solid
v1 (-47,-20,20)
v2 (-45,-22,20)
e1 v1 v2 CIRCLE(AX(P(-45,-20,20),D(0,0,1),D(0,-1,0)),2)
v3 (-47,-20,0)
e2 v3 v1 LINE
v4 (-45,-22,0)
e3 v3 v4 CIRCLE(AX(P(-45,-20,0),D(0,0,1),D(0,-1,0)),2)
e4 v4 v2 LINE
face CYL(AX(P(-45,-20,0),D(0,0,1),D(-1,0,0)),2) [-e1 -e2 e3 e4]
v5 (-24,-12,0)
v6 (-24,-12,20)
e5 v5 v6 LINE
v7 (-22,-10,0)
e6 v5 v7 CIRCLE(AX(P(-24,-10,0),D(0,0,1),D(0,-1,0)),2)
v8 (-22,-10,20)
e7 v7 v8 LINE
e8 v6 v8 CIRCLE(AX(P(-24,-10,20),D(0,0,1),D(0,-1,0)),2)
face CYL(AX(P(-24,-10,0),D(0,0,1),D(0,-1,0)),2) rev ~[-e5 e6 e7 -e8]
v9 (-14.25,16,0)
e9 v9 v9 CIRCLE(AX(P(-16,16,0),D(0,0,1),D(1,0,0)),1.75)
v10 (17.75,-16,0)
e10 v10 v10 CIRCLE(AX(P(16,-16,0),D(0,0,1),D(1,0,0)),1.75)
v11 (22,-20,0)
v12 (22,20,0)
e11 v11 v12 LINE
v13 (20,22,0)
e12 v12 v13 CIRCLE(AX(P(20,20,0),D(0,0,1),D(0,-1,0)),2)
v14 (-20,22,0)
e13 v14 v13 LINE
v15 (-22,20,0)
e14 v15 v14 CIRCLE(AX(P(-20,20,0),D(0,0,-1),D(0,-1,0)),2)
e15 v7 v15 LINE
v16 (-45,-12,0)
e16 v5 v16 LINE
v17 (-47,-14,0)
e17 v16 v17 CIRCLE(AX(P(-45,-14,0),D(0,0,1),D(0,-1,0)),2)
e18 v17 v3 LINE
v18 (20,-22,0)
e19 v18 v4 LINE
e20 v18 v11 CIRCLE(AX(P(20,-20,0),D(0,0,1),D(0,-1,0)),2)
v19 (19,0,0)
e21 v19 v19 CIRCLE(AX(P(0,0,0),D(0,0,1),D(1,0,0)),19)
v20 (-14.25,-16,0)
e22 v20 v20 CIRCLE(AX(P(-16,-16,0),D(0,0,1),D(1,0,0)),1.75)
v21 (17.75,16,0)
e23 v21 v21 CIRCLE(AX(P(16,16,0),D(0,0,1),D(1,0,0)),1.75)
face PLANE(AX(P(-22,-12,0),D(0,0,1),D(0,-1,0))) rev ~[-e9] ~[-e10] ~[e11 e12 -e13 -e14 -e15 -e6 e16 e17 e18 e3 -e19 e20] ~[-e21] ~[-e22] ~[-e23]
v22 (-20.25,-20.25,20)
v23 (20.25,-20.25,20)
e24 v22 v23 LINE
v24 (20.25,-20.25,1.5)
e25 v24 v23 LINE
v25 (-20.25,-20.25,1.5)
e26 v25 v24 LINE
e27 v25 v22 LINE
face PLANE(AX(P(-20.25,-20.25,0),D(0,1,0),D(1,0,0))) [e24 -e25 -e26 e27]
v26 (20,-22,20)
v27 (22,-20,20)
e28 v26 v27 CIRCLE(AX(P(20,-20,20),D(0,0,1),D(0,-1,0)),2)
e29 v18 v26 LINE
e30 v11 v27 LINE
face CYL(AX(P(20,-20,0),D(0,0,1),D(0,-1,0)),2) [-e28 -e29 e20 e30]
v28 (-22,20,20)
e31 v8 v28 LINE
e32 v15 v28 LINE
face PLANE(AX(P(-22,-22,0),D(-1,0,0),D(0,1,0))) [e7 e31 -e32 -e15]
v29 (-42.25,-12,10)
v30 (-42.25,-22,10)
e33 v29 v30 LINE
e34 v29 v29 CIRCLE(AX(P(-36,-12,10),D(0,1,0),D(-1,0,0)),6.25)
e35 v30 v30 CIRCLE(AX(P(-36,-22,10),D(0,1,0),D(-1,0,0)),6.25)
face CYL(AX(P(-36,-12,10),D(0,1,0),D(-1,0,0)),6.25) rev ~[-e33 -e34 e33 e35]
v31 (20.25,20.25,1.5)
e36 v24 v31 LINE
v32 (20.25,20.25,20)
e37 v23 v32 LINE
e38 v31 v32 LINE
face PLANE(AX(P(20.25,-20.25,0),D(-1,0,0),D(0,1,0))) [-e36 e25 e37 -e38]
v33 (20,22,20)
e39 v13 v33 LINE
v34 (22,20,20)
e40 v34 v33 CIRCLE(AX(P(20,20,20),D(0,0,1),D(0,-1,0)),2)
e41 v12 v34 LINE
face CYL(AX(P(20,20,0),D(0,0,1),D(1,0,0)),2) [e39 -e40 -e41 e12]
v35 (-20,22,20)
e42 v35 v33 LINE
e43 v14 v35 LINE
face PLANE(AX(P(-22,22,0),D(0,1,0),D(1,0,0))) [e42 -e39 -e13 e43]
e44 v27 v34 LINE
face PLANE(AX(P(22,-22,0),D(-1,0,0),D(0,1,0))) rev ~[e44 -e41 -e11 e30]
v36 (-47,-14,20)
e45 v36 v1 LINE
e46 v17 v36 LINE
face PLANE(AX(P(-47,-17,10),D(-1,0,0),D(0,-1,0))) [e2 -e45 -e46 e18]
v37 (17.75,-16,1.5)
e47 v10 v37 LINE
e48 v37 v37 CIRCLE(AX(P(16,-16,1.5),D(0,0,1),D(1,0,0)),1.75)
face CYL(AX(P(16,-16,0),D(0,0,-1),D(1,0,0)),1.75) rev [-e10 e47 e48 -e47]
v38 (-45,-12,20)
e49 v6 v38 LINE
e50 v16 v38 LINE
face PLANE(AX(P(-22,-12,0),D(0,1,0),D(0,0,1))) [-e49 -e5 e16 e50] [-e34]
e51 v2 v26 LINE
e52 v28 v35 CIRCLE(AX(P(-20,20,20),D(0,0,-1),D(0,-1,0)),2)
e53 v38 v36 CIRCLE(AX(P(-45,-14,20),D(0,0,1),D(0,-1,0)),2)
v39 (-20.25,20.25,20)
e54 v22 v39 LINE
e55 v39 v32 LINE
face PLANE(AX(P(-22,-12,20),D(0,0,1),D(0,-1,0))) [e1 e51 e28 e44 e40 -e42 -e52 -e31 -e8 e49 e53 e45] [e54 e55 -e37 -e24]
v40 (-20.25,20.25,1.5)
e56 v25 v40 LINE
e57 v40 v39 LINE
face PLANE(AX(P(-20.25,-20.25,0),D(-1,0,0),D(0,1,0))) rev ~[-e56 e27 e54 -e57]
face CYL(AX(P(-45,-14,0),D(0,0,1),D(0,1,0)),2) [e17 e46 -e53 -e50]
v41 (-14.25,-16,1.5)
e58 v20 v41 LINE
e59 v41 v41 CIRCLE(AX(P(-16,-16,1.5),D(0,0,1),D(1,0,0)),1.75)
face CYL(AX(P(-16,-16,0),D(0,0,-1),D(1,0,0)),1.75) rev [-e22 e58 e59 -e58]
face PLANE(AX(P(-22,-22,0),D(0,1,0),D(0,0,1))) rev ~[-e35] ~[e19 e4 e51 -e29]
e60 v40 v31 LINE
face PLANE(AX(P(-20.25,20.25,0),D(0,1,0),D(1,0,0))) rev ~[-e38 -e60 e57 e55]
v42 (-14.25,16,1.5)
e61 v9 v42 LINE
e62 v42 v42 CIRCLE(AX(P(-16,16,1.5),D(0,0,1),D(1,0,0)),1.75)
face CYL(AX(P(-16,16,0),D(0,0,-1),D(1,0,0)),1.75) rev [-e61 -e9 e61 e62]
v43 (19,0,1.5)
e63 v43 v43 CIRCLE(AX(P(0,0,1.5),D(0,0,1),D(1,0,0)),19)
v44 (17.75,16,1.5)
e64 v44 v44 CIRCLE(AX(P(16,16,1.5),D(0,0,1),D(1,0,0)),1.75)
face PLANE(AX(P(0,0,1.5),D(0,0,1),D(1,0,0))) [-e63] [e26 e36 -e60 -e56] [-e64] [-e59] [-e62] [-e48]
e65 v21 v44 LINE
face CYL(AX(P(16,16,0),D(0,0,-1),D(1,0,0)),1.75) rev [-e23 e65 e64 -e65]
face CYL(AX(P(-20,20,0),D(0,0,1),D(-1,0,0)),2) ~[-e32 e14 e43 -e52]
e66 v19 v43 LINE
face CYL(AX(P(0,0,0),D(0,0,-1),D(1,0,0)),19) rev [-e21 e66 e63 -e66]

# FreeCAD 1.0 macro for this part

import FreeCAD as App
import Part
import Sketcher

V = App.Vector


def edges_at(feature, points):
    """Names of the edges that pass closest to the given points."""
    edges = feature.Shape.Edges
    near = lambda p: min(range(len(edges)), key=lambda i: edges[i].distToShape(Part.Vertex(*p))[0])
    return sorted({f"Edge{near(p) + 1}" for p in points})


def add_polygon(sketch, points):
    """Adds a closed chain of lines whose ends are joined by coincident constraints."""
    first, n = sketch.GeometryCount, len(points)
    for a, b in zip(points, points[1:] + points[:1]):
        sketch.addGeometry(Part.LineSegment(App.Vector(*a, 0), App.Vector(*b, 0)), False)
    for i in range(n):
        sketch.addConstraint(Sketcher.Constraint("Coincident", first + i, 2, first + (i + 1) % n, 1))

doc = App.newDocument("Part")
body = doc.addObject("PartDesign::Body", "Body")

sketch1 = body.newObject("Sketcher::SketchObject", "Sketch")
sketch1.AttachmentSupport = (doc.getObject("XY_Plane"), [""])
sketch1.MapMode = "FlatFace"
add_polygon(sketch1, [(-22, 22), (-22, -22), (22, -22), (22, 22)])
add_polygon(sketch1, [(20.25, -20.25), (-20.25, -20.25), (-20.25, 20.25), (20.25, 20.25)])
sketch1.addConstraint(Sketcher.Constraint("Vertical", 0))
sketch1.addConstraint(Sketcher.Constraint("Horizontal", 1))
sketch1.addConstraint(Sketcher.Constraint("Vertical", 2))
sketch1.addConstraint(Sketcher.Constraint("Horizontal", 3))
sketch1.addConstraint(Sketcher.Constraint("Horizontal", 4))
sketch1.addConstraint(Sketcher.Constraint("Vertical", 5))
sketch1.addConstraint(Sketcher.Constraint("Horizontal", 6))
sketch1.addConstraint(Sketcher.Constraint("Vertical", 7))
sketch1.addConstraint(Sketcher.Constraint("Symmetric", 0, 2, 2, 2, -1, 1))
sketch1.addConstraint(Sketcher.Constraint("Symmetric", 4, 2, 6, 2, -1, 1))
sketch1.addConstraint(Sketcher.Constraint("Equal", 3, 0))
sketch1.addConstraint(Sketcher.Constraint("Equal", 6, 5))
sketch1.addConstraint(Sketcher.Constraint("DistanceX", 1, 1, 1, 2, 44.0))
sketch1.addConstraint(Sketcher.Constraint("DistanceX", 4, 2, 4, 1, 40.5))
pad1 = body.newObject("PartDesign::Pad", "Pad")
pad1.Profile = sketch1
pad1.Length = 20

sketch2 = body.newObject("Sketcher::SketchObject", "Sketch001")
sketch2.AttachmentSupport = (doc.getObject("XY_Plane"), [""])
sketch2.MapMode = "FlatFace"
add_polygon(sketch2, [(-20.25, 20.25), (-20.25, -20.25), (20.25, -20.25), (20.25, 20.25)])
sketch2.addGeometry(Part.Circle(V(-16, -16, 0), V(0, 0, 1), 1.75), False)
sketch2.addGeometry(Part.Circle(V(16, -16, 0), V(0, 0, 1), 1.75), False)
sketch2.addGeometry(Part.Circle(V(-16, 16, 0), V(0, 0, 1), 1.75), False)
sketch2.addGeometry(Part.Circle(V(0, 0, 0), V(0, 0, 1), 19), False)
sketch2.addGeometry(Part.Circle(V(16, 16, 0), V(0, 0, 1), 1.75), False)
sketch2.addConstraint(Sketcher.Constraint("Vertical", 0))
sketch2.addConstraint(Sketcher.Constraint("Horizontal", 1))
sketch2.addConstraint(Sketcher.Constraint("Vertical", 2))
sketch2.addConstraint(Sketcher.Constraint("Horizontal", 3))
sketch2.addConstraint(Sketcher.Constraint("Coincident", 7, 3, -1, 1))
sketch2.addConstraint(Sketcher.Constraint("Equal", 4, 5))
sketch2.addConstraint(Sketcher.Constraint("Equal", 5, 6))
sketch2.addConstraint(Sketcher.Constraint("Equal", 6, 8))
sketch2.addConstraint(Sketcher.Constraint("Symmetric", 5, 3, 6, 3, -1, 1))
sketch2.addConstraint(Sketcher.Constraint("Symmetric", 4, 3, 8, 3, -1, 1))
sketch2.addConstraint(Sketcher.Constraint("Symmetric", 0, 2, 2, 2, -1, 1))
sketch2.addConstraint(Sketcher.Constraint("Symmetric", 4, 3, 5, 3, -2))
sketch2.addConstraint(Sketcher.Constraint("Equal", 3, 0))
sketch2.addConstraint(Sketcher.Constraint("Diameter", 7, 38.0))
sketch2.addConstraint(Sketcher.Constraint("Diameter", 4, 3.5))
sketch2.addConstraint(Sketcher.Constraint("DistanceX", 1, 1, 1, 2, 40.5))
sketch2.addConstraint(Sketcher.Constraint("DistanceX", 4, 3, -1, 1, 16.0))
sketch2.addConstraint(Sketcher.Constraint("DistanceY", 4, 3, -1, 1, 16.0))
pad2 = body.newObject("PartDesign::Pad", "Pad001")
pad2.Profile = sketch2
pad2.Length = 1.5

sketch3 = body.newObject("Sketcher::SketchObject", "Sketch002")
sketch3.AttachmentSupport = (doc.getObject("YZ_Plane"), [""])
sketch3.MapMode = "FlatFace"
sketch3.AttachmentOffset = App.Placement(V(0, 0, -22), App.Rotation())
add_polygon(sketch3, [(-12, 20), (-12, 0), (-22, 0), (-22, 20)])
sketch3.addConstraint(Sketcher.Constraint("Vertical", 0))
sketch3.addConstraint(Sketcher.Constraint("Horizontal", 1))
sketch3.addConstraint(Sketcher.Constraint("Vertical", 2))
sketch3.addConstraint(Sketcher.Constraint("Horizontal", 3))
sketch3.addConstraint(Sketcher.Constraint("PointOnObject", 0, 2, -1))
sketch3.addConstraint(Sketcher.Constraint("DistanceX", 1, 2, 1, 1, 10.0))
sketch3.addConstraint(Sketcher.Constraint("DistanceY", 0, 2, 0, 1, 20.0))
sketch3.addConstraint(Sketcher.Constraint("DistanceX", 0, 2, -1, 1, 12.0))
pad3 = body.newObject("PartDesign::Pad", "Pad002")
pad3.Profile = sketch3
pad3.Length = 25
pad3.Reversed = True

sketch4 = body.newObject("Sketcher::SketchObject", "Sketch003")
sketch4.AttachmentSupport = (doc.getObject("XZ_Plane"), [""])
sketch4.MapMode = "FlatFace"
sketch4.AttachmentOffset = App.Placement(V(0, 0, 12), App.Rotation())
sketch4.addGeometry(Part.Circle(V(-36, 10, 0), V(0, 0, 1), 6.25), False)
sketch4.addConstraint(Sketcher.Constraint("Diameter", 0, 12.5))
sketch4.addConstraint(Sketcher.Constraint("DistanceX", 0, 3, -1, 1, 36.0))
sketch4.addConstraint(Sketcher.Constraint("DistanceY", -1, 1, 0, 3, 10.0))
pocket1 = body.newObject("PartDesign::Pocket", "Pocket")
pocket1.Profile = sketch4
pocket1.Length = 10
pocket1.Reversed = True
doc.recompute()

fillet = body.newObject("PartDesign::Fillet", "Fillet")
fillet.Base = (pocket1, edges_at(pocket1, [
    (-22, -12, 10),
    (-22, 22, 10),
    (22, 22, 10),
    (22, -22, 10),
    (-47, -12, 10),
    (-47, -22, 10),
]))
fillet.Radius = 2

doc.recompute()
